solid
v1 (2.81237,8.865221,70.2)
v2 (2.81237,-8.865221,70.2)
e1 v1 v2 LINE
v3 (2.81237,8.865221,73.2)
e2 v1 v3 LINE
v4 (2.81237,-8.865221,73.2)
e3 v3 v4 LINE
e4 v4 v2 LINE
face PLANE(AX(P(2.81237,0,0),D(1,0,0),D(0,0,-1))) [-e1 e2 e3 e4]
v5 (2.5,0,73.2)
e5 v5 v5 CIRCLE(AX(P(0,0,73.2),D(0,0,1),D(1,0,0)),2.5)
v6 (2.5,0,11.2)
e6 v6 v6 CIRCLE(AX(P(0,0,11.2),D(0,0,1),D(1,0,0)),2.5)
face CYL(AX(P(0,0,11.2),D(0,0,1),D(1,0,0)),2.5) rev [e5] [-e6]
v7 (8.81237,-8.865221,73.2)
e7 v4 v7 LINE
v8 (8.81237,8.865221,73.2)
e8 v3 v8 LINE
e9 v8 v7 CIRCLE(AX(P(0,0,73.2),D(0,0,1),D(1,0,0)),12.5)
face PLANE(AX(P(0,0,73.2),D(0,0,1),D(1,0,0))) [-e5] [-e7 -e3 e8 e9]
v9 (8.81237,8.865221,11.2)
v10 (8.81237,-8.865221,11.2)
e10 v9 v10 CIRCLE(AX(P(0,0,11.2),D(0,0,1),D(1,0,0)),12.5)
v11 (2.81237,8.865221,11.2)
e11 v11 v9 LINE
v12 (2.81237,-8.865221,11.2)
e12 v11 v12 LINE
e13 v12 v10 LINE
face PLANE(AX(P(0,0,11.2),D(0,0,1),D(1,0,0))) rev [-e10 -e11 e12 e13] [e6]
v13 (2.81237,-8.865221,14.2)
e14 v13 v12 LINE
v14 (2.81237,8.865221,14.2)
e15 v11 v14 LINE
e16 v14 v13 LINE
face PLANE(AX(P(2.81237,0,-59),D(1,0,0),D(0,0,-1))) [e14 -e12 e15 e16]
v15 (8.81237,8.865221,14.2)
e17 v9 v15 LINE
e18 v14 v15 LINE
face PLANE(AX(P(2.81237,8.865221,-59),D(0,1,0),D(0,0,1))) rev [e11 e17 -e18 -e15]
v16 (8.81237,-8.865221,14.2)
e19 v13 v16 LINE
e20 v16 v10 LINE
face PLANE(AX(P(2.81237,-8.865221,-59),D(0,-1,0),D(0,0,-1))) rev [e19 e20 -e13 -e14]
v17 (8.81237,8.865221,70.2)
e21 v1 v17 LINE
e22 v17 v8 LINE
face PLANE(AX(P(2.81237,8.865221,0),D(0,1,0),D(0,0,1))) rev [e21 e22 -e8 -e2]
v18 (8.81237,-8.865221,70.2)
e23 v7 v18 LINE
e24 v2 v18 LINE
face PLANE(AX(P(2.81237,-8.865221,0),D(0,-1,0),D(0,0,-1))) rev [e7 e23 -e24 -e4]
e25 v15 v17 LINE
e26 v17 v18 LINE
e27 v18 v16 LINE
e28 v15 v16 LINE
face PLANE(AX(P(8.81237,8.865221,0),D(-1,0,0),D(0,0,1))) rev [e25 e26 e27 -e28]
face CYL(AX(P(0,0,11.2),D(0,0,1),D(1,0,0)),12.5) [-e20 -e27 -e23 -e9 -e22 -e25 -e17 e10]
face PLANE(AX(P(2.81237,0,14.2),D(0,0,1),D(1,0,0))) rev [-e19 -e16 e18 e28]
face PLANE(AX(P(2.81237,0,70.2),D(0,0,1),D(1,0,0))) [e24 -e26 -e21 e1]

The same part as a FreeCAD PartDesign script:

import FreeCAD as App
import Part
import Sketcher
from FreeCAD import Vector
Q = App.Units.Quantity

doc = App.newDocument("Part")
params = doc.addObject("Spreadsheet::Sheet", "Params")
for row, (alias, value) in enumerate([
    ("sketch1_diameter", "5 mm"),
    ("pad1_length", "88.2 mm"),
    ("sketch2_diameter", "25 mm"),
    ("pad2_length", "62 mm"),
    ("sketch3_diameter", "10 mm"),
    ("sketch3_width", "40 mm"),
    ("pad3_length", "3 mm"),
    ("linearpattern_pitch", "59 mm"),
    ("sketch5_height", "3 mm"),
    ("pocket2_length", "6 mm"),
    ("linearpattern2_pitch", "59 mm"),
    ("sketch6_width", "5 mm"),
    ("sketch7_width", "5 mm"),
    ("sketch7_height", "11.2 mm"),
    ("sketch8_diameter", "5 mm"),
], start=1):
    params.set(f"A{row}", alias)
    params.set(f"B{row}", "=" + value)
    params.setAlias(f"B{row}", alias)

body = doc.addObject("PartDesign::Body", "Body")

# Sketch on XY plane
sketch1 = body.newObject("Sketcher::SketchObject", "Sketch")
sketch1.AttachmentSupport = (doc.getObject("XY_Plane"), [""])
sketch1.MapMode = "FlatFace"
sketch1.addGeometry(Part.Circle(Vector(0, 0, 0), Vector(0, 0, 1), 2.5), False)
sketch1.addConstraint([
    Sketcher.Constraint("Coincident", 0, 3, -1, 1),
    Sketcher.Constraint("Diameter", 0, Q("5 mm")),
])
sketch1.setExpression("Constraints[1]", "Params.sketch1_diameter")
pad1 = body.newObject("PartDesign::Pad", "Pad")
pad1.Profile = sketch1
pad1.setExpression("Length", "Params.pad1_length")

# Sketch on XY plane
sketch2 = body.newObject("Sketcher::SketchObject", "Sketch001")
sketch2.AttachmentSupport = (doc.getObject("XY_Plane"), [""])
sketch2.MapMode = "FlatFace"
sketch2.AttachmentOffset = App.Placement(Vector(0, 0, 73.2), App.Rotation())
sketch2.addGeometry(Part.Circle(Vector(0, 0, 0), Vector(0, 0, 1), 12), False)
sketch2.addConstraint([
    Sketcher.Constraint("Coincident", 0, 3, -1, 1),
    Sketcher.Constraint("Diameter", 0, Q("25 mm")),
])
sketch2.setExpression("Constraints[1]", "Params.sketch2_diameter")
pad2 = body.newObject("PartDesign::Pad", "Pad001")
pad2.Profile = sketch2
pad2.setExpression("Length", "Params.pad2_length")
pad2.Reversed = True

# Sketch on XY plane
sketch3 = body.newObject("Sketcher::SketchObject", "Sketch002")
sketch3.AttachmentSupport = (doc.getObject("XY_Plane"), [""])
sketch3.MapMode = "FlatFace"
sketch3.AttachmentOffset = App.Placement(Vector(0, 0, 73.2), App.Rotation())
sketch3.addGeometry([
    Part.LineSegment(Vector(0, 9, 0), Vector(0, -9, 0)),  # 0
    Part.LineSegment(Vector(0, -9, 0), Vector(40, -9, 0)),  # 1
    Part.LineSegment(Vector(40, -9, 0), Vector(40, 9, 0)),  # 2
    Part.LineSegment(Vector(40, 9, 0), Vector(0, 9, 0)),  # 3
    Part.Circle(Vector(33, 0, 0), Vector(0, 0, 1), 5),  # 4
], False)
sketch3.addConstraint([
    Sketcher.Constraint("Coincident", 0, 2, 1, 1),
    Sketcher.Constraint("Coincident", 1, 2, 2, 1),
    Sketcher.Constraint("Coincident", 2, 2, 3, 1),
    Sketcher.Constraint("Coincident", 3, 2, 0, 1),
    Sketcher.Constraint("Vertical", 0),
    Sketcher.Constraint("Horizontal", 1),
    Sketcher.Constraint("Vertical", 2),
    Sketcher.Constraint("Horizontal", 3),
    Sketcher.Constraint("Symmetric", 0, 2, 3, 2, -1, 1),
    Sketcher.Constraint("PointOnObject", 4, 3, -1),
    Sketcher.Constraint("Diameter", 4, Q("10 mm")),
    Sketcher.Constraint("DistanceX", 1, 1, 1, 2, Q("40 mm")),
    Sketcher.Constraint("DistanceY", 0, 2, 0, 1, Q("17.730441 mm")),
    Sketcher.Constraint("DistanceX", -1, 1, 4, 3, Q("32.640039 mm")),
])
sketch3.setExpression("Constraints[10]", "Params.sketch3_diameter")
sketch3.setExpression("Constraints[11]", "Params.sketch3_width")
pad3 = body.newObject("PartDesign::Pad", "Pad002")
pad3.Profile = sketch3
pad3.setExpression("Length", "Params.pad3_length")
pad3.Reversed = True
doc.recompute()

linearpattern = body.newObject("PartDesign::LinearPattern", "LinearPattern")
linearpattern.Originals = [pad3]
linearpattern.Direction = (doc.getObject("Z_Axis"), [""])
linearpattern.Mode = "offset"
linearpattern.setExpression("Offset", "Params.linearpattern_pitch")
linearpattern.Occurrences = 2
linearpattern.Reversed = True
body.Tip = linearpattern

# Sketch on XY plane
sketch4 = body.newObject("Sketcher::SketchObject", "Sketch003")
sketch4.AttachmentSupport = (doc.getObject("XY_Plane"), [""])
sketch4.MapMode = "FlatFace"
sketch4.AttachmentOffset = App.Placement(Vector(0, 0, 73.2), App.Rotation())
sketch4.addGeometry([
    Part.LineSegment(Vector(9, 9, 0), Vector(9, -9, 0)),
    Part.LineSegment(Vector(9, -9, 0), Vector(40, -9, 0)),
    Part.LineSegment(Vector(40, -9, 0), Vector(40, 9, 0)),
    Part.LineSegment(Vector(40, 9, 0), Vector(9, 9, 0)),
], False)
sketch4.addConstraint([
    Sketcher.Constraint("Coincident", 0, 2, 1, 1),
    Sketcher.Constraint("Coincident", 1, 2, 2, 1),
    Sketcher.Constraint("Coincident", 2, 2, 3, 1),
    Sketcher.Constraint("Coincident", 3, 2, 0, 1),
    Sketcher.Constraint("Vertical", 0),
    Sketcher.Constraint("Horizontal", 1),
    Sketcher.Constraint("Vertical", 2),
    Sketcher.Constraint("Horizontal", 3),
    Sketcher.Constraint("DistanceX", -1, 1, 1, 2, Q("40 mm")),
    Sketcher.Constraint("DistanceX", 1, 1, 1, 2, Q("31.18763 mm")),
    Sketcher.Constraint("DistanceY", 0, 2, 0, 1, Q("17.730441 mm")),
    Sketcher.Constraint("DistanceY", 0, 2, -1, 1, Q("8.865221 mm")),
])
pocket1 = body.newObject("PartDesign::Pocket", "Pocket")
pocket1.Profile = sketch4
pocket1.Type = "ThroughAll"
pocket1.Midplane = True

# Sketch on YZ plane
sketch5 = body.newObject("Sketcher::SketchObject", "Sketch004")
sketch5.AttachmentSupport = (doc.getObject("YZ_Plane"), [""])
sketch5.MapMode = "FlatFace"
sketch5.AttachmentOffset = App.Placement(Vector(0, 0, 8.81237), App.Rotation())
sketch5.addGeometry([
    Part.LineSegment(Vector(8.9, 70.2, 0), Vector(8.9, 73.2, 0)),
    Part.LineSegment(Vector(8.9, 73.2, 0), Vector(-8.9, 73.2, 0)),
    Part.LineSegment(Vector(-8.9, 73.2, 0), Vector(-8.9, 70.2, 0)),
    Part.LineSegment(Vector(-8.9, 70.2, 0), Vector(8.9, 70.2, 0)),
], False)
sketch5.addConstraint([
    Sketcher.Constraint("Coincident", 0, 2, 1, 1),
    Sketcher.Constraint("Coincident", 1, 2, 2, 1),
    Sketcher.Constraint("Coincident", 2, 2, 3, 1),
    Sketcher.Constraint("Coincident", 3, 2, 0, 1),
    Sketcher.Constraint("Vertical", 0),
    Sketcher.Constraint("Horizontal", 1),
    Sketcher.Constraint("Vertical", 2),
    Sketcher.Constraint("Horizontal", 3),
    Sketcher.Constraint("DistanceY", 0, 1, 0, 2, Q("3 mm")),
    Sketcher.Constraint("DistanceY", -1, 1, 0, 2, Q("73.2 mm")),
    Sketcher.Constraint("DistanceX", 1, 2, 1, 1, Q("17.730441 mm")),
    Sketcher.Constraint("DistanceX", -1, 1, 0, 2, Q("8.865221 mm")),
])
sketch5.setExpression("Constraints[8]", "Params.sketch5_height")
pocket2 = body.newObject("PartDesign::Pocket", "Pocket001")
pocket2.Profile = sketch5
pocket2.setExpression("Length", "Params.pocket2_length")
doc.recompute()

linearpattern2 = body.newObject("PartDesign::LinearPattern", "LinearPattern001")
linearpattern2.Originals = [pocket2]
linearpattern2.Direction = (doc.getObject("Z_Axis"), [""])
linearpattern2.Mode = "offset"
linearpattern2.setExpression("Offset", "Params.linearpattern2_pitch")
linearpattern2.Occurrences = 2
linearpattern2.Reversed = True
body.Tip = linearpattern2

# Sketch on YZ plane
sketch6 = body.newObject("Sketcher::SketchObject", "Sketch005")
sketch6.AttachmentSupport = (doc.getObject("YZ_Plane"), [""])
sketch6.MapMode = "FlatFace"
sketch6.AttachmentOffset = App.Placement(Vector(0, 0, 8.81237), App.Rotation())
sketch6.addGeometry([
    Part.LineSegment(Vector(-3, 73, 0), Vector(3, 73, 0)),
    Part.LineSegment(Vector(3, 73, 0), Vector(2, 88, 0)),
    Part.LineSegment(Vector(2, 88, 0), Vector(-2, 88, 0)),
    Part.LineSegment(Vector(-2, 88, 0), Vector(-3, 73, 0)),
], False)
sketch6.addConstraint([
    Sketcher.Constraint("Coincident", 0, 2, 1, 1),
    Sketcher.Constraint("Coincident", 1, 2, 2, 1),
    Sketcher.Constraint("Coincident", 2, 2, 3, 1),
    Sketcher.Constraint("Coincident", 3, 2, 0, 1),
    Sketcher.Constraint("Horizontal", 0),
    Sketcher.Constraint("Horizontal", 2),
    Sketcher.Constraint("DistanceX", 2, 2, 2, 1, Q("5 mm")),
    Sketcher.Constraint("DistanceY", 0, 2, 1, 2, Q("15 mm")),
    Sketcher.Constraint("DistanceY", -1, 1, 0, 2, Q("73.2 mm")),
    Sketcher.Constraint("DistanceX", -1, 1, 1, 2, Q("2.5 mm")),
    Sketcher.Constraint("DistanceX", 0, 1, 0, 2, Q("5.059899 mm")),
    Sketcher.Constraint("DistanceX", -1, 1, 0, 2, Q("2.52856 mm")),
])
sketch6.setExpression("Constraints[6]", "Params.sketch6_width")
pocket3 = body.newObject("PartDesign::Pocket", "Pocket002")
pocket3.Profile = sketch6
pocket3.Type = "ThroughAll"

# Sketch on YZ plane
sketch7 = body.newObject("Sketcher::SketchObject", "Sketch006")
sketch7.AttachmentSupport = (doc.getObject("YZ_Plane"), [""])
sketch7.MapMode = "FlatFace"
sketch7.AttachmentOffset = App.Placement(Vector(0, 0, 8.81237), App.Rotation())
sketch7.addGeometry([
    Part.LineSegment(Vector(2, 11, 0), Vector(-2, 11, 0)),
    Part.LineSegment(Vector(-2, 11, 0), Vector(-2, 0, 0)),
    Part.LineSegment(Vector(-2, 0, 0), Vector(2, 0, 0)),
    Part.LineSegment(Vector(2, 0, 0), Vector(2, 11, 0)),
], False)
sketch7.addConstraint([
    Sketcher.Constraint("Coincident", 0, 2, 1, 1),
    Sketcher.Constraint("Coincident", 1, 2, 2, 1),
    Sketcher.Constraint("Coincident", 2, 2, 3, 1),
    Sketcher.Constraint("Coincident", 3, 2, 0, 1),
    Sketcher.Constraint("Horizontal", 0),
    Sketcher.Constraint("Vertical", 1),
    Sketcher.Constraint("Horizontal", 2),
    Sketcher.Constraint("Vertical", 3),
    Sketcher.Constraint("Symmetric", 1, 2, 2, 2, -1, 1),
    Sketcher.Constraint("DistanceX", 0, 2, 0, 1, Q("5 mm")),
    Sketcher.Constraint("DistanceY", 1, 2, 1, 1, Q("11.2 mm")),
])
sketch7.setExpression("Constraints[9]", "Params.sketch7_width")
sketch7.setExpression("Constraints[10]", "Params.sketch7_height")
pocket4 = body.newObject("PartDesign::Pocket", "Pocket003")
pocket4.Profile = sketch7
pocket4.Type = "ThroughAll"

# Sketch on XY plane
sketch8 = body.newObject("Sketcher::SketchObject", "Sketch007")
sketch8.AttachmentSupport = (doc.getObject("XY_Plane"), [""])
sketch8.MapMode = "FlatFace"
sketch8.AttachmentOffset = App.Placement(Vector(0, 0, 73.2), App.Rotation())
sketch8.addGeometry(Part.Circle(Vector(0, 0, 0), Vector(0, 0, 1), 2.5), False)
sketch8.addConstraint([
    Sketcher.Constraint("Coincident", 0, 3, -1, 1),
    Sketcher.Constraint("Diameter", 0, Q("5 mm")),
])
sketch8.setExpression("Constraints[1]", "Params.sketch8_diameter")
pocket5 = body.newObject("PartDesign::Pocket", "Pocket004")
pocket5.Profile = sketch8
pocket5.Type = "ThroughAll"

doc.recompute()
